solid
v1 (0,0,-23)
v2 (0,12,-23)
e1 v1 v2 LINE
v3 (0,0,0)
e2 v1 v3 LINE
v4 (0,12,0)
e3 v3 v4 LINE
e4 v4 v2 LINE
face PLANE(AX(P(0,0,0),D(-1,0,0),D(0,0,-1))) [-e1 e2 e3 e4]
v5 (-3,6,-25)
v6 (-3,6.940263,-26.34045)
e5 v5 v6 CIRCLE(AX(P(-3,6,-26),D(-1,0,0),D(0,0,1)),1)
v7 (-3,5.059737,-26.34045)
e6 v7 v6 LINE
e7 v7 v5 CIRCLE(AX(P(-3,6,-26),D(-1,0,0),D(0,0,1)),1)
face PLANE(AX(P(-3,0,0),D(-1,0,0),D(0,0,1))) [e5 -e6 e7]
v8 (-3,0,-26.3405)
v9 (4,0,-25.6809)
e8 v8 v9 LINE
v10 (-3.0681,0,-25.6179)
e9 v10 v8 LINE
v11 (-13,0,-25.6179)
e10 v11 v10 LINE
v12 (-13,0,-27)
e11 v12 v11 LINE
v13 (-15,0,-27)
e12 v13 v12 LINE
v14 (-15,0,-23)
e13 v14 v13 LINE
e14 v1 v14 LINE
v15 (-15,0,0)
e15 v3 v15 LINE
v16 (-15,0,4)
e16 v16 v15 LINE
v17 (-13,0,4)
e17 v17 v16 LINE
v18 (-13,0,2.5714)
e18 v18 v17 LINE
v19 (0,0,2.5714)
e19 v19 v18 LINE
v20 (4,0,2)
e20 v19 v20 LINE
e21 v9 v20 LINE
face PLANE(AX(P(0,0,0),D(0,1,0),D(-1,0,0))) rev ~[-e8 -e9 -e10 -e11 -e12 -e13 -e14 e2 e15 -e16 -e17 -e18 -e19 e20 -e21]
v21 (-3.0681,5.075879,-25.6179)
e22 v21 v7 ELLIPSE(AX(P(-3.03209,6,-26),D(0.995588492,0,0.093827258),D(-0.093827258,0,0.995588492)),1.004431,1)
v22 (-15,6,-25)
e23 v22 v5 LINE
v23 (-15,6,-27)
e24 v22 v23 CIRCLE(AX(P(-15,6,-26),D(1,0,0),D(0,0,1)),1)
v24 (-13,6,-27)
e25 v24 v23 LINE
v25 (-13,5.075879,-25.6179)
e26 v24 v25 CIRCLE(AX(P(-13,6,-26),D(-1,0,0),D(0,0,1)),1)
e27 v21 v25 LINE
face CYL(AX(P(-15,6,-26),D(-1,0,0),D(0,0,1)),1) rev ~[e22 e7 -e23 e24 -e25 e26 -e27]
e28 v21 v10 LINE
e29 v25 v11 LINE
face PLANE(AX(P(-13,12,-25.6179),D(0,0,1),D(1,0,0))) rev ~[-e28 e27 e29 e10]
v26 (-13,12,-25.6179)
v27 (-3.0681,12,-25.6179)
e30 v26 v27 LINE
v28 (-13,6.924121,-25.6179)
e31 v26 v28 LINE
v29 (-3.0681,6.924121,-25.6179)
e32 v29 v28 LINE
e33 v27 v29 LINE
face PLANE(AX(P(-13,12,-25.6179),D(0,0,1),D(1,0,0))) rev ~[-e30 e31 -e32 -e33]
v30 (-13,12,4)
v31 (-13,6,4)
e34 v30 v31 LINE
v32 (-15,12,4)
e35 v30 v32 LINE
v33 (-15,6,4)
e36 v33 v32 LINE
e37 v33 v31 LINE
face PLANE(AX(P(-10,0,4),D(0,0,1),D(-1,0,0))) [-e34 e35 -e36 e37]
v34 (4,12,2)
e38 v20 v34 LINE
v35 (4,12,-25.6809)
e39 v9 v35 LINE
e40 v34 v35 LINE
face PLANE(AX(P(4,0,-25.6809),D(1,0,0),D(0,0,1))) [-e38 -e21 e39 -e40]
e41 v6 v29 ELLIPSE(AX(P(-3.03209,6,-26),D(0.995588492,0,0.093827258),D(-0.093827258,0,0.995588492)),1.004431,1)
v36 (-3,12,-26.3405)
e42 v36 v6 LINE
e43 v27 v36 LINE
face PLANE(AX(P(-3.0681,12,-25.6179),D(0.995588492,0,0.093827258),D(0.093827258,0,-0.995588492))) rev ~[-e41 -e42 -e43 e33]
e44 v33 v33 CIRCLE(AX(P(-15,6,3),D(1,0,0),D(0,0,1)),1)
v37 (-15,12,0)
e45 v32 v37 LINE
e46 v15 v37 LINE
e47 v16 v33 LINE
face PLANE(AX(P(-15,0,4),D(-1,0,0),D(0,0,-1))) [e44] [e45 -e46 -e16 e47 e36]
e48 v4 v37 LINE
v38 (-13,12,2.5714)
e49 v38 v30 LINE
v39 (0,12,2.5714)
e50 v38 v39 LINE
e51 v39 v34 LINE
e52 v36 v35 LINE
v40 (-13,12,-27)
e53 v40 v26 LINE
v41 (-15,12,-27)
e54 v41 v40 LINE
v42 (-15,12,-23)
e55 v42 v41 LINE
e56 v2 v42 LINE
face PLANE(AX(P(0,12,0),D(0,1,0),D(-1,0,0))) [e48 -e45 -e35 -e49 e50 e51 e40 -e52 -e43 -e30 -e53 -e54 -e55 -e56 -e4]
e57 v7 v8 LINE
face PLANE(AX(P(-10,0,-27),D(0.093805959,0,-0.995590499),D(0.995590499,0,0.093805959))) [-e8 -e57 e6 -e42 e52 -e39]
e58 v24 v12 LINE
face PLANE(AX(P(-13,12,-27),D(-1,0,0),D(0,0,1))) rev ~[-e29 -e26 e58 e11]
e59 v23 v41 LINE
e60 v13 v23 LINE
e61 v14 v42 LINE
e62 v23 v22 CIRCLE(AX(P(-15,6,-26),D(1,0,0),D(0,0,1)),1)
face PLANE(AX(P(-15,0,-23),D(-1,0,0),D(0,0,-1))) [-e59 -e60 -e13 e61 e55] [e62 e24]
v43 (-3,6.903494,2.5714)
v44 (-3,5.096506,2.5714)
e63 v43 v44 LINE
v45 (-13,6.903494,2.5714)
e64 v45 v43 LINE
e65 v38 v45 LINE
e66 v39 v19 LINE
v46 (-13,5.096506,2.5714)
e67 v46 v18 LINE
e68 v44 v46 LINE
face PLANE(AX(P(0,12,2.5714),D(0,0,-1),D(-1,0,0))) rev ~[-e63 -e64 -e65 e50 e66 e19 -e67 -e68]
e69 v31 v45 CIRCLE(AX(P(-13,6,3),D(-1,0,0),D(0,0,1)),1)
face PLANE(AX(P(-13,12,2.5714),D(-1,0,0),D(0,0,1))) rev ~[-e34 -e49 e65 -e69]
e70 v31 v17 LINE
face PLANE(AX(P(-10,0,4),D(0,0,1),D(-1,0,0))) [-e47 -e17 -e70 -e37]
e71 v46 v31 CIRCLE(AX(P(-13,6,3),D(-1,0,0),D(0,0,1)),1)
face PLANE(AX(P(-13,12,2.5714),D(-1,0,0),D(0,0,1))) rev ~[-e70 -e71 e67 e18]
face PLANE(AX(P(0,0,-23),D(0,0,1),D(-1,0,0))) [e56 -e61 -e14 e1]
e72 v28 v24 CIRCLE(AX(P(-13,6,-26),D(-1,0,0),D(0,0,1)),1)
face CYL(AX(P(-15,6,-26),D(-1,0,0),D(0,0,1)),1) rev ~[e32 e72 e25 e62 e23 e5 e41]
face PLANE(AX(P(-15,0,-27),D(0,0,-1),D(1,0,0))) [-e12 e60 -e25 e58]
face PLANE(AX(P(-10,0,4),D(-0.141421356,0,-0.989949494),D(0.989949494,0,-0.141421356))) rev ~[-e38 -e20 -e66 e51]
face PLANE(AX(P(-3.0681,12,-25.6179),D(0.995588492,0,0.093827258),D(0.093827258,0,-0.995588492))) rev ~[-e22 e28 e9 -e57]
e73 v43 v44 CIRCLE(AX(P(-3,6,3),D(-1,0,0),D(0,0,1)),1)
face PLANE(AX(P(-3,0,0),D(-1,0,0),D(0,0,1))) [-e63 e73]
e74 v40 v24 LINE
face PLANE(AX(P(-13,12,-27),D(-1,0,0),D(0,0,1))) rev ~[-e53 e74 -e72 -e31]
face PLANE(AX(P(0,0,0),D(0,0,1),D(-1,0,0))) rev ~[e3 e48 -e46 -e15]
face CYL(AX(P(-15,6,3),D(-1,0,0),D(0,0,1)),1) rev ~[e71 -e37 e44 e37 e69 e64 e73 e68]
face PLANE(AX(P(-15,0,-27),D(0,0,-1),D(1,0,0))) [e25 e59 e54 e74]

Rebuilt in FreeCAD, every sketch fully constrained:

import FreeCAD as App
import Part
import Sketcher
from FreeCAD import Vector
Q = App.Units.Quantity

doc = App.newDocument("Part")
params = doc.addObject("Spreadsheet::Sheet", "Params")
for row, (alias, value) in enumerate([
    ("sketch1_width", "15 mm"),
    ("sketch1_width2", "5 mm"),
    ("sketch1_height", "4 mm"),
    ("sketch1_height2", "23 mm"),
    ("pad1_length", "12 mm"),
    ("sketch2_diameter", "2 mm"),
    ("pocket1_length", "12 mm"),
    ("sketch3_width", "13 mm"),
    ("sketch3_width2", "3 mm"),
    ("pocket2_length", "12 mm"),
    ("pocket3_length", "12 mm"),
], start=1):
    params.set(f"A{row}", alias)
    params.set(f"B{row}", "=" + value)
    params.setAlias(f"B{row}", alias)

body = doc.addObject("PartDesign::Body", "Body")
body.AllowCompound = True

# Sketch on XZ plane
sketch1 = body.newObject("Sketcher::SketchObject", "Sketch")
sketch1.AttachmentSupport = (doc.getObject("XZ_Plane"), [""])
sketch1.MapMode = "FlatFace"
sketch1.addGeometry(Part.LineSegment(Vector(0, -23, 0), Vector(0, 0, 0)), False)
sketch1.addGeometry(Part.LineSegment(Vector(0, 0, 0), Vector(-15, 0, 0)), False)
sketch1.addGeometry(Part.LineSegment(Vector(-15, 0, 0), Vector(-15, 4, 0)), False)
sketch1.addGeometry(Part.LineSegment(Vector(-15, 4, 0), Vector(-10, 4, 0)), False)
sketch1.addGeometry(Part.LineSegment(Vector(-10, 4, 0), Vector(4, 2, 0)), False)
sketch1.addGeometry(Part.LineSegment(Vector(4, 2, 0), Vector(4, -25.6809, 0)), False)
sketch1.addGeometry(Part.LineSegment(Vector(4, -25.6809, 0), Vector(-10, -27, 0)), False)
sketch1.addGeometry(Part.LineSegment(Vector(-10, -27, 0), Vector(-15, -27, 0)), False)
sketch1.addGeometry(Part.LineSegment(Vector(-15, -27, 0), Vector(-15, -23, 0)), False)
sketch1.addGeometry(Part.LineSegment(Vector(-15, -23, 0), Vector(0, -23, 0)), False)
sketch1.addConstraint(Sketcher.Constraint("Coincident", 0, 2, 1, 1))
sketch1.addConstraint(Sketcher.Constraint("Coincident", 1, 2, 2, 1))
sketch1.addConstraint(Sketcher.Constraint("Coincident", 2, 2, 3, 1))
sketch1.addConstraint(Sketcher.Constraint("Coincident", 3, 2, 4, 1))
sketch1.addConstraint(Sketcher.Constraint("Coincident", 4, 2, 5, 1))
sketch1.addConstraint(Sketcher.Constraint("Coincident", 5, 2, 6, 1))
sketch1.addConstraint(Sketcher.Constraint("Coincident", 6, 2, 7, 1))
sketch1.addConstraint(Sketcher.Constraint("Coincident", 7, 2, 8, 1))
sketch1.addConstraint(Sketcher.Constraint("Coincident", 8, 2, 9, 1))
sketch1.addConstraint(Sketcher.Constraint("Coincident", 9, 2, 0, 1))
sketch1.addConstraint(Sketcher.Constraint("Vertical", 0))
sketch1.addConstraint(Sketcher.Constraint("Horizontal", 1))
sketch1.addConstraint(Sketcher.Constraint("Vertical", 2))
sketch1.addConstraint(Sketcher.Constraint("Horizontal", 3))
sketch1.addConstraint(Sketcher.Constraint("Vertical", 5))
sketch1.addConstraint(Sketcher.Constraint("Horizontal", 7))
sketch1.addConstraint(Sketcher.Constraint("Vertical", 8))
sketch1.addConstraint(Sketcher.Constraint("Horizontal", 9))
sketch1.addConstraint(Sketcher.Constraint("Coincident", 0, 2, -1, 1))
sketch1.addConstraint(Sketcher.Constraint("Vertical", 3, 2, 6, 2))
sketch1.addConstraint(Sketcher.Constraint("Vertical", 2, 2, 7, 2))
sketch1.addConstraint(Sketcher.Constraint("Equal", 2, 8))
sketch1.addConstraint(Sketcher.Constraint("DistanceX", 1, 2, 1, 1, 15.0))
sketch1.addConstraint(Sketcher.Constraint("DistanceX", 3, 1, 3, 2, 5.0))
sketch1.addConstraint(Sketcher.Constraint("DistanceY", 2, 1, 2, 2, 4.0))
sketch1.addConstraint(Sketcher.Constraint("DistanceX", -1, 1, 4, 2, 4.0))
sketch1.addConstraint(Sketcher.Constraint("DistanceY", 0, 1, 0, 2, 23.0))
sketch1.addConstraint(Sketcher.Constraint("DistanceY", -1, 1, 4, 2, 2.0))
sketch1.addConstraint(Sketcher.Constraint("DistanceY", 5, 2, 5, 1, 27.681))
sketch1.setExpression("Constraints[22]", "Params.sketch1_width")
sketch1.setExpression("Constraints[23]", "Params.sketch1_width2")
sketch1.setExpression("Constraints[24]", "Params.sketch1_height")
sketch1.setExpression("Constraints[26]", "Params.sketch1_height2")
pad1 = body.newObject("PartDesign::Pad", "Pad")
pad1.Profile = sketch1
pad1.setExpression("Length", "Params.pad1_length")
pad1.Reversed = True

# Sketch on YZ plane
sketch2 = body.newObject("Sketcher::SketchObject", "Sketch001")
sketch2.AttachmentSupport = (doc.getObject("YZ_Plane"), [""])
sketch2.MapMode = "FlatFace"
sketch2.AttachmentOffset = App.Placement(Vector(0, 0, -15), App.Rotation())
sketch2.addGeometry(Part.Circle(Vector(6, 3, 0), Vector(0, 0, 1), 1), False)
sketch2.addGeometry(Part.Circle(Vector(6, -26, 0), Vector(0, 0, 1), 1), False)
sketch2.addConstraint(Sketcher.Constraint("Equal", 0, 1))
sketch2.addConstraint(Sketcher.Constraint("Vertical", 0, 3, 1, 3))
sketch2.addConstraint(Sketcher.Constraint("Diameter", 0, 2.0))
sketch2.addConstraint(Sketcher.Constraint("DistanceX", -1, 1, 0, 3, 6.0))
sketch2.addConstraint(Sketcher.Constraint("DistanceY", -1, 1, 0, 3, 3.0))
sketch2.addConstraint(Sketcher.Constraint("DistanceY", 1, 3, -1, 1, 26.0))
sketch2.setExpression("Constraints[2]", "Params.sketch2_diameter")
pocket1 = body.newObject("PartDesign::Pocket", "Pocket")
pocket1.Profile = sketch2
pocket1.setExpression("Length", "Params.pocket1_length")
pocket1.Reversed = True

# Sketch on XZ plane
sketch3 = body.newObject("Sketcher::SketchObject", "Sketch002")
sketch3.AttachmentSupport = (doc.getObject("XZ_Plane"), [""])
sketch3.MapMode = "FlatFace"
sketch3.AttachmentOffset = App.Placement(Vector(0, 0, -12), App.Rotation())
sketch3.addGeometry(Part.LineSegment(Vector(-10.0485, 4, 0), Vector(0, 2.5714, 0)), False)
sketch3.addGeometry(Part.LineSegment(Vector(0, 2.5714, 0), Vector(-13, 2.5714, 0)), False)
sketch3.addGeometry(Part.LineSegment(Vector(-13, 2.5714, 0), Vector(-13, 4, 0)), False)
sketch3.addGeometry(Part.LineSegment(Vector(-13, 4, 0), Vector(-10.0485, 4, 0)), False)
sketch3.addGeometry(Part.LineSegment(Vector(-3, -26.3405, 0), Vector(-10, -27, 0)), False)
sketch3.addGeometry(Part.LineSegment(Vector(-10, -27, 0), Vector(-13, -27, 0)), False)
sketch3.addGeometry(Part.LineSegment(Vector(-13, -27, 0), Vector(-13, -25.6179, 0)), False)
sketch3.addGeometry(Part.LineSegment(Vector(-13, -25.6179, 0), Vector(-3.0681, -25.6179, 0)), False)
sketch3.addGeometry(Part.LineSegment(Vector(-3.0681, -25.6179, 0), Vector(-3, -26.3405, 0)), False)
sketch3.addConstraint(Sketcher.Constraint("Coincident", 0, 2, 1, 1))
sketch3.addConstraint(Sketcher.Constraint("Coincident", 1, 2, 2, 1))
sketch3.addConstraint(Sketcher.Constraint("Coincident", 2, 2, 3, 1))
sketch3.addConstraint(Sketcher.Constraint("Coincident", 3, 2, 0, 1))
sketch3.addConstraint(Sketcher.Constraint("Coincident", 4, 2, 5, 1))
sketch3.addConstraint(Sketcher.Constraint("Coincident", 5, 2, 6, 1))
sketch3.addConstraint(Sketcher.Constraint("Coincident", 6, 2, 7, 1))
sketch3.addConstraint(Sketcher.Constraint("Coincident", 7, 2, 8, 1))
sketch3.addConstraint(Sketcher.Constraint("Coincident", 8, 2, 4, 1))
sketch3.addConstraint(Sketcher.Constraint("Horizontal", 1))
sketch3.addConstraint(Sketcher.Constraint("Vertical", 2))
sketch3.addConstraint(Sketcher.Constraint("Horizontal", 3))
sketch3.addConstraint(Sketcher.Constraint("Horizontal", 5))
sketch3.addConstraint(Sketcher.Constraint("Vertical", 6))
sketch3.addConstraint(Sketcher.Constraint("Horizontal", 7))
sketch3.addConstraint(Sketcher.Constraint("PointOnObject", 0, 2, -2))
sketch3.addConstraint(Sketcher.Constraint("DistanceX", 1, 2, 1, 1, 13.0))
sketch3.addConstraint(Sketcher.Constraint("DistanceX", 5, 2, 5, 1, 3.0))
sketch3.addConstraint(Sketcher.Constraint("DistanceY", -1, 1, 2, 2, 4.0))
sketch3.addConstraint(Sketcher.Constraint("DistanceX", 4, 2, -1, 1, 10.0))
sketch3.addConstraint(Sketcher.Constraint("DistanceY", 4, 2, -1, 1, 27.0))
sketch3.addConstraint(Sketcher.Constraint("DistanceX", 8, 2, -1, 1, 3.0))
sketch3.addConstraint(Sketcher.Constraint("DistanceX", 7, 1, 7, 2, 9.932))
sketch3.addConstraint(Sketcher.Constraint("DistanceY", 6, 1, 6, 2, 1.382))
sketch3.addConstraint(Sketcher.Constraint("Distance", 4, 7.031))
sketch3.addConstraint(Sketcher.Constraint("DistanceX", 3, 1, 3, 2, 2.9515))
sketch3.addConstraint(Sketcher.Constraint("DistanceY", 2, 1, 2, 2, 1.4286))
sketch3.setExpression("Constraints[16]", "Params.sketch3_width")
sketch3.setExpression("Constraints[17]", "Params.sketch3_width2")
pocket2 = body.newObject("PartDesign::Pocket", "Pocket001")
pocket2.Profile = sketch3
pocket2.setExpression("Length", "Params.pocket2_length")
pocket2.Reversed = True

# Sketch on XZ plane
sketch4 = body.newObject("Sketcher::SketchObject", "Sketch003")
sketch4.AttachmentSupport = (doc.getObject("XZ_Plane"), [""])
sketch4.MapMode = "FlatFace"
sketch4.AttachmentOffset = App.Placement(Vector(0, 0, -12), App.Rotation())
sketch4.addGeometry(Part.LineSegment(Vector(-10.6007, 6.2769, 0), Vector(0, 2.5714, 0)), False)
sketch4.addGeometry(Part.LineSegment(Vector(0, 2.5714, 0), Vector(-11.0485, 2.5714, 0)), False)
sketch4.addGeometry(Part.LineSegment(Vector(-11.0485, 2.5714, 0), Vector(-10.6007, 6.2769, 0)), False)
sketch4.addConstraint(Sketcher.Constraint("Coincident", 0, 2, 1, 1))
sketch4.addConstraint(Sketcher.Constraint("Coincident", 1, 2, 2, 1))
sketch4.addConstraint(Sketcher.Constraint("Coincident", 2, 2, 0, 1))
sketch4.addConstraint(Sketcher.Constraint("Horizontal", 1))
sketch4.addConstraint(Sketcher.Constraint("PointOnObject", 0, 2, -2))
sketch4.addConstraint(Sketcher.Constraint("Angle", 2, Q("83.1094 deg")))
sketch4.addConstraint(Sketcher.Constraint("DistanceX", 1, 2, 1, 1, 11.0485))
sketch4.addConstraint(Sketcher.Constraint("DistanceY", -1, 1, 2, 2, 6.277))
sketch4.addConstraint(Sketcher.Constraint("Distance", 0, 11.2297))
pocket3 = body.newObject("PartDesign::Pocket", "Pocket002")
pocket3.Profile = sketch4
pocket3.setExpression("Length", "Params.pocket3_length")
pocket3.Reversed = True

doc.recompute()
